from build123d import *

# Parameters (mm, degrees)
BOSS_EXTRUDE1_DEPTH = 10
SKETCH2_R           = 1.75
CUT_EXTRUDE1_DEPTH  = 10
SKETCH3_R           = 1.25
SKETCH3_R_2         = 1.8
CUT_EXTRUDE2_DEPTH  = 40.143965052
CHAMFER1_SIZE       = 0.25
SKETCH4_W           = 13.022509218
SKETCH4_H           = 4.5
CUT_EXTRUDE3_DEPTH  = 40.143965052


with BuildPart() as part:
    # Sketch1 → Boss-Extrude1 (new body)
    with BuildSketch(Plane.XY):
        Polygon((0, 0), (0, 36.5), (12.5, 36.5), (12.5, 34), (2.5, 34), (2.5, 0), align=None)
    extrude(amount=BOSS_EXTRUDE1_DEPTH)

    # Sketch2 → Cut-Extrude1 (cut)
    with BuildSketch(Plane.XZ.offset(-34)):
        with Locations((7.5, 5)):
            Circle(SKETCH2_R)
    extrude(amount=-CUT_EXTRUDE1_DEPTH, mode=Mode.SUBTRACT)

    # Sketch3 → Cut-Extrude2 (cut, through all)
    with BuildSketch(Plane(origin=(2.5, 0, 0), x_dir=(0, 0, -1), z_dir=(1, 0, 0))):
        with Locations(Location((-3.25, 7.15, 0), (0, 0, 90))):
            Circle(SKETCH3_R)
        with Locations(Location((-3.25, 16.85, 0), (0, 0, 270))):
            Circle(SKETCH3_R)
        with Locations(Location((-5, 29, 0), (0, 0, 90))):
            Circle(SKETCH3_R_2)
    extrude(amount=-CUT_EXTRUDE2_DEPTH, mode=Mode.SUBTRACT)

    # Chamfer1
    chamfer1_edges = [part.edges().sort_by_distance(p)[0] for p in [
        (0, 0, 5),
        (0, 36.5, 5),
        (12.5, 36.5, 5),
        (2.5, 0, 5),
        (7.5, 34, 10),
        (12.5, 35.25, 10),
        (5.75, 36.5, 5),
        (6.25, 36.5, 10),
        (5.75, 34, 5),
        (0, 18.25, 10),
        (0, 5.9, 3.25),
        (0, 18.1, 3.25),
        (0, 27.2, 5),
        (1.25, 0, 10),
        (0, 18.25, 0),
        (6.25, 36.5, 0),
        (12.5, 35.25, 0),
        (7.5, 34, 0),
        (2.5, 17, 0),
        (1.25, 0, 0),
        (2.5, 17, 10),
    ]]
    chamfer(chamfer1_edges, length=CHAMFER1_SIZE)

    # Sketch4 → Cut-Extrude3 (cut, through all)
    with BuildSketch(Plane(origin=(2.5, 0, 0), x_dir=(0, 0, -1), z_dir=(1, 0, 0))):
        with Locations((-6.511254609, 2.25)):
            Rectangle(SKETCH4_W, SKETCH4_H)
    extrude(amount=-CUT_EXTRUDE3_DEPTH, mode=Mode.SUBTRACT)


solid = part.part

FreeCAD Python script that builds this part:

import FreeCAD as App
import Part
import Sketcher
Q = App.Units.Quantity


def edges_at(feature, points):
    """Names of the edges that pass closest to the given points."""
    edges = feature.Shape.Edges
    near = lambda p: min(range(len(edges)), key=lambda i: edges[i].distToShape(Part.Vertex(*p))[0])
    return sorted({f"Edge{near(p) + 1}" for p in points})


def add_polygon(sketch, points):
    """Adds a closed chain of lines whose ends are joined by coincident constraints."""
    first, n = sketch.GeometryCount, len(points)
    for a, b in zip(points, points[1:] + points[:1]):
        sketch.addGeometry(Part.LineSegment(App.Vector(*a, 0), App.Vector(*b, 0)), False)
    for i in range(n):
        sketch.addConstraint(Sketcher.Constraint("Coincident", first + i, 2, first + (i + 1) % n, 1))

doc = App.newDocument("Part")
body = doc.addObject("PartDesign::Body", "Body")

sketch1 = body.newObject("Sketcher::SketchObject", "Sketch")
sketch1.AttachmentSupport = (doc.getObject("XY_Plane"), [""])
sketch1.MapMode = "FlatFace"
add_polygon(sketch1, [(0, 36.5), (0, 0), (2.5, 0), (2.5, 34), (12.5, 34), (12.5, 36.5)])
sketch1.addConstraint(Sketcher.Constraint("Vertical", 0))
sketch1.addConstraint(Sketcher.Constraint("Horizontal", 1))
sketch1.addConstraint(Sketcher.Constraint("Vertical", 2))
sketch1.addConstraint(Sketcher.Constraint("Horizontal", 3))
sketch1.addConstraint(Sketcher.Constraint("Vertical", 4))
sketch1.addConstraint(Sketcher.Constraint("Horizontal", 5))
sketch1.addConstraint(Sketcher.Constraint("Coincident", 0, 2, -1, 1))
sketch1.addConstraint(Sketcher.Constraint("Equal", 1, 4))
sketch1.addConstraint(Sketcher.Constraint("DistanceX", 3, 1, 3, 2, Q("10 mm")))
sketch1.addConstraint(Sketcher.Constraint("DistanceY", 2, 1, 2, 2, Q("34 mm")))
sketch1.addConstraint(Sketcher.Constraint("DistanceX", 1, 1, 1, 2, Q("2.5 mm")))
pad1 = body.newObject("PartDesign::Pad", "Pad")
pad1.Profile = sketch1
pad1.Length = 10

sketch2 = body.newObject("Sketcher::SketchObject", "Sketch001")
sketch2.AttachmentSupport = (doc.getObject("XZ_Plane"), [""])
sketch2.MapMode = "FlatFace"
sketch2.AttachmentOffset = App.Placement(App.Vector(0, 0, -34), App.Rotation())
sketch2.addGeometry(Part.Circle(App.Vector(7.5, 5, 0), App.Vector(0, 0, 1), 1.8), False)
sketch2.addConstraint(Sketcher.Constraint("Diameter", 0, Q("3.5 mm")))
sketch2.addConstraint(Sketcher.Constraint("DistanceY", -1, 1, 0, 3, Q("5 mm")))
sketch2.addConstraint(Sketcher.Constraint("DistanceX", -1, 1, 0, 3, Q("7.5 mm")))
pocket1 = body.newObject("PartDesign::Pocket", "Pocket")
pocket1.Profile = sketch2
pocket1.Length = 10

sketch3 = body.newObject("Sketcher::SketchObject", "Sketch002")
sketch3.AttachmentSupport = (doc.getObject("YZ_Plane"), [""])
sketch3.MapMode = "FlatFace"
sketch3.AttachmentOffset = App.Placement(App.Vector(0, 0, 2.5), App.Rotation())
sketch3.addGeometry(Part.Circle(App.Vector(7.2, 3.2, 0), App.Vector(0, 0, 1), 1.2), False)
sketch3.addGeometry(Part.Circle(App.Vector(16.9, 3.2, 0), App.Vector(0, 0, 1), 1.2), False)
sketch3.addGeometry(Part.Circle(App.Vector(29, 5, 0), App.Vector(0, 0, 1), 1.8), False)
sketch3.addConstraint(Sketcher.Constraint("Equal", 0, 1))
sketch3.addConstraint(Sketcher.Constraint("Horizontal", 0, 3, 1, 3))
sketch3.addConstraint(Sketcher.Constraint("Diameter", 0, Q("2.5 mm")))
sketch3.addConstraint(Sketcher.Constraint("Diameter", 2, Q("3.6 mm")))
sketch3.addConstraint(Sketcher.Constraint("DistanceX", -1, 1, 2, 3, Q("29 mm")))
sketch3.addConstraint(Sketcher.Constraint("DistanceY", -1, 1, 2, 3, Q("5 mm")))
sketch3.addConstraint(Sketcher.Constraint("DistanceX", 0, 3, 1, 3, Q("9.7 mm")))
sketch3.addConstraint(Sketcher.Constraint("DistanceX", -1, 1, 0, 3, Q("7.15 mm")))
sketch3.addConstraint(Sketcher.Constraint("DistanceY", -1, 1, 0, 3, Q("3.25 mm")))
pocket2 = body.newObject("PartDesign::Pocket", "Pocket001")
pocket2.Profile = sketch3
pocket2.Type = "ThroughAll"
doc.recompute()

chamfer = body.newObject("PartDesign::Chamfer", "Chamfer")
chamfer.Base = (pocket2, edges_at(pocket2, [
    (0, 0, 5),
    (0, 36.5, 5),
    (12.5, 36.5, 5),
    (2.5, 0, 5),
    (7.5, 34, 10),
    (12.5, 35.25, 10),
    (5.75, 36.5, 5),
    (6.25, 36.5, 10),
    (5.75, 34, 5),
    (0, 18.25, 10),
    (0, 5.9, 3.25),
    (0, 18.1, 3.25),
    (0, 27.2, 5),
    (1.25, 0, 10),
    (0, 18.25, 0),
    (6.25, 36.5, 0),
    (12.5, 35.25, 0),
    (7.5, 34, 0),
    (2.5, 17, 0),
    (1.25, 0, 0),
    (2.5, 17, 10),
]))
chamfer.Size = 0.25

sketch4 = body.newObject("Sketcher::SketchObject", "Sketch003")
sketch4.AttachmentSupport = (doc.getObject("YZ_Plane"), [""])
sketch4.MapMode = "FlatFace"
sketch4.AttachmentOffset = App.Placement(App.Vector(0, 0, 2.5), App.Rotation())
add_polygon(sketch4, [(4.5, 13), (0, 13), (0, 0), (4.5, 0)])
sketch4.addConstraint(Sketcher.Constraint("Horizontal", 0))
sketch4.addConstraint(Sketcher.Constraint("Vertical", 1))
sketch4.addConstraint(Sketcher.Constraint("Horizontal", 2))
sketch4.addConstraint(Sketcher.Constraint("Vertical", 3))
sketch4.addConstraint(Sketcher.Constraint("Coincident", 1, 2, -1, 1))
sketch4.addConstraint(Sketcher.Constraint("DistanceX", 0, 2, 0, 1, Q("4.5 mm")))
sketch4.addConstraint(Sketcher.Constraint("DistanceY", 1, 2, 1, 1, Q("13.022509 mm")))
pocket3 = body.newObject("PartDesign::Pocket", "Pocket002")
pocket3.Profile = sketch4
pocket3.Type = "ThroughAll"

doc.recompute()
